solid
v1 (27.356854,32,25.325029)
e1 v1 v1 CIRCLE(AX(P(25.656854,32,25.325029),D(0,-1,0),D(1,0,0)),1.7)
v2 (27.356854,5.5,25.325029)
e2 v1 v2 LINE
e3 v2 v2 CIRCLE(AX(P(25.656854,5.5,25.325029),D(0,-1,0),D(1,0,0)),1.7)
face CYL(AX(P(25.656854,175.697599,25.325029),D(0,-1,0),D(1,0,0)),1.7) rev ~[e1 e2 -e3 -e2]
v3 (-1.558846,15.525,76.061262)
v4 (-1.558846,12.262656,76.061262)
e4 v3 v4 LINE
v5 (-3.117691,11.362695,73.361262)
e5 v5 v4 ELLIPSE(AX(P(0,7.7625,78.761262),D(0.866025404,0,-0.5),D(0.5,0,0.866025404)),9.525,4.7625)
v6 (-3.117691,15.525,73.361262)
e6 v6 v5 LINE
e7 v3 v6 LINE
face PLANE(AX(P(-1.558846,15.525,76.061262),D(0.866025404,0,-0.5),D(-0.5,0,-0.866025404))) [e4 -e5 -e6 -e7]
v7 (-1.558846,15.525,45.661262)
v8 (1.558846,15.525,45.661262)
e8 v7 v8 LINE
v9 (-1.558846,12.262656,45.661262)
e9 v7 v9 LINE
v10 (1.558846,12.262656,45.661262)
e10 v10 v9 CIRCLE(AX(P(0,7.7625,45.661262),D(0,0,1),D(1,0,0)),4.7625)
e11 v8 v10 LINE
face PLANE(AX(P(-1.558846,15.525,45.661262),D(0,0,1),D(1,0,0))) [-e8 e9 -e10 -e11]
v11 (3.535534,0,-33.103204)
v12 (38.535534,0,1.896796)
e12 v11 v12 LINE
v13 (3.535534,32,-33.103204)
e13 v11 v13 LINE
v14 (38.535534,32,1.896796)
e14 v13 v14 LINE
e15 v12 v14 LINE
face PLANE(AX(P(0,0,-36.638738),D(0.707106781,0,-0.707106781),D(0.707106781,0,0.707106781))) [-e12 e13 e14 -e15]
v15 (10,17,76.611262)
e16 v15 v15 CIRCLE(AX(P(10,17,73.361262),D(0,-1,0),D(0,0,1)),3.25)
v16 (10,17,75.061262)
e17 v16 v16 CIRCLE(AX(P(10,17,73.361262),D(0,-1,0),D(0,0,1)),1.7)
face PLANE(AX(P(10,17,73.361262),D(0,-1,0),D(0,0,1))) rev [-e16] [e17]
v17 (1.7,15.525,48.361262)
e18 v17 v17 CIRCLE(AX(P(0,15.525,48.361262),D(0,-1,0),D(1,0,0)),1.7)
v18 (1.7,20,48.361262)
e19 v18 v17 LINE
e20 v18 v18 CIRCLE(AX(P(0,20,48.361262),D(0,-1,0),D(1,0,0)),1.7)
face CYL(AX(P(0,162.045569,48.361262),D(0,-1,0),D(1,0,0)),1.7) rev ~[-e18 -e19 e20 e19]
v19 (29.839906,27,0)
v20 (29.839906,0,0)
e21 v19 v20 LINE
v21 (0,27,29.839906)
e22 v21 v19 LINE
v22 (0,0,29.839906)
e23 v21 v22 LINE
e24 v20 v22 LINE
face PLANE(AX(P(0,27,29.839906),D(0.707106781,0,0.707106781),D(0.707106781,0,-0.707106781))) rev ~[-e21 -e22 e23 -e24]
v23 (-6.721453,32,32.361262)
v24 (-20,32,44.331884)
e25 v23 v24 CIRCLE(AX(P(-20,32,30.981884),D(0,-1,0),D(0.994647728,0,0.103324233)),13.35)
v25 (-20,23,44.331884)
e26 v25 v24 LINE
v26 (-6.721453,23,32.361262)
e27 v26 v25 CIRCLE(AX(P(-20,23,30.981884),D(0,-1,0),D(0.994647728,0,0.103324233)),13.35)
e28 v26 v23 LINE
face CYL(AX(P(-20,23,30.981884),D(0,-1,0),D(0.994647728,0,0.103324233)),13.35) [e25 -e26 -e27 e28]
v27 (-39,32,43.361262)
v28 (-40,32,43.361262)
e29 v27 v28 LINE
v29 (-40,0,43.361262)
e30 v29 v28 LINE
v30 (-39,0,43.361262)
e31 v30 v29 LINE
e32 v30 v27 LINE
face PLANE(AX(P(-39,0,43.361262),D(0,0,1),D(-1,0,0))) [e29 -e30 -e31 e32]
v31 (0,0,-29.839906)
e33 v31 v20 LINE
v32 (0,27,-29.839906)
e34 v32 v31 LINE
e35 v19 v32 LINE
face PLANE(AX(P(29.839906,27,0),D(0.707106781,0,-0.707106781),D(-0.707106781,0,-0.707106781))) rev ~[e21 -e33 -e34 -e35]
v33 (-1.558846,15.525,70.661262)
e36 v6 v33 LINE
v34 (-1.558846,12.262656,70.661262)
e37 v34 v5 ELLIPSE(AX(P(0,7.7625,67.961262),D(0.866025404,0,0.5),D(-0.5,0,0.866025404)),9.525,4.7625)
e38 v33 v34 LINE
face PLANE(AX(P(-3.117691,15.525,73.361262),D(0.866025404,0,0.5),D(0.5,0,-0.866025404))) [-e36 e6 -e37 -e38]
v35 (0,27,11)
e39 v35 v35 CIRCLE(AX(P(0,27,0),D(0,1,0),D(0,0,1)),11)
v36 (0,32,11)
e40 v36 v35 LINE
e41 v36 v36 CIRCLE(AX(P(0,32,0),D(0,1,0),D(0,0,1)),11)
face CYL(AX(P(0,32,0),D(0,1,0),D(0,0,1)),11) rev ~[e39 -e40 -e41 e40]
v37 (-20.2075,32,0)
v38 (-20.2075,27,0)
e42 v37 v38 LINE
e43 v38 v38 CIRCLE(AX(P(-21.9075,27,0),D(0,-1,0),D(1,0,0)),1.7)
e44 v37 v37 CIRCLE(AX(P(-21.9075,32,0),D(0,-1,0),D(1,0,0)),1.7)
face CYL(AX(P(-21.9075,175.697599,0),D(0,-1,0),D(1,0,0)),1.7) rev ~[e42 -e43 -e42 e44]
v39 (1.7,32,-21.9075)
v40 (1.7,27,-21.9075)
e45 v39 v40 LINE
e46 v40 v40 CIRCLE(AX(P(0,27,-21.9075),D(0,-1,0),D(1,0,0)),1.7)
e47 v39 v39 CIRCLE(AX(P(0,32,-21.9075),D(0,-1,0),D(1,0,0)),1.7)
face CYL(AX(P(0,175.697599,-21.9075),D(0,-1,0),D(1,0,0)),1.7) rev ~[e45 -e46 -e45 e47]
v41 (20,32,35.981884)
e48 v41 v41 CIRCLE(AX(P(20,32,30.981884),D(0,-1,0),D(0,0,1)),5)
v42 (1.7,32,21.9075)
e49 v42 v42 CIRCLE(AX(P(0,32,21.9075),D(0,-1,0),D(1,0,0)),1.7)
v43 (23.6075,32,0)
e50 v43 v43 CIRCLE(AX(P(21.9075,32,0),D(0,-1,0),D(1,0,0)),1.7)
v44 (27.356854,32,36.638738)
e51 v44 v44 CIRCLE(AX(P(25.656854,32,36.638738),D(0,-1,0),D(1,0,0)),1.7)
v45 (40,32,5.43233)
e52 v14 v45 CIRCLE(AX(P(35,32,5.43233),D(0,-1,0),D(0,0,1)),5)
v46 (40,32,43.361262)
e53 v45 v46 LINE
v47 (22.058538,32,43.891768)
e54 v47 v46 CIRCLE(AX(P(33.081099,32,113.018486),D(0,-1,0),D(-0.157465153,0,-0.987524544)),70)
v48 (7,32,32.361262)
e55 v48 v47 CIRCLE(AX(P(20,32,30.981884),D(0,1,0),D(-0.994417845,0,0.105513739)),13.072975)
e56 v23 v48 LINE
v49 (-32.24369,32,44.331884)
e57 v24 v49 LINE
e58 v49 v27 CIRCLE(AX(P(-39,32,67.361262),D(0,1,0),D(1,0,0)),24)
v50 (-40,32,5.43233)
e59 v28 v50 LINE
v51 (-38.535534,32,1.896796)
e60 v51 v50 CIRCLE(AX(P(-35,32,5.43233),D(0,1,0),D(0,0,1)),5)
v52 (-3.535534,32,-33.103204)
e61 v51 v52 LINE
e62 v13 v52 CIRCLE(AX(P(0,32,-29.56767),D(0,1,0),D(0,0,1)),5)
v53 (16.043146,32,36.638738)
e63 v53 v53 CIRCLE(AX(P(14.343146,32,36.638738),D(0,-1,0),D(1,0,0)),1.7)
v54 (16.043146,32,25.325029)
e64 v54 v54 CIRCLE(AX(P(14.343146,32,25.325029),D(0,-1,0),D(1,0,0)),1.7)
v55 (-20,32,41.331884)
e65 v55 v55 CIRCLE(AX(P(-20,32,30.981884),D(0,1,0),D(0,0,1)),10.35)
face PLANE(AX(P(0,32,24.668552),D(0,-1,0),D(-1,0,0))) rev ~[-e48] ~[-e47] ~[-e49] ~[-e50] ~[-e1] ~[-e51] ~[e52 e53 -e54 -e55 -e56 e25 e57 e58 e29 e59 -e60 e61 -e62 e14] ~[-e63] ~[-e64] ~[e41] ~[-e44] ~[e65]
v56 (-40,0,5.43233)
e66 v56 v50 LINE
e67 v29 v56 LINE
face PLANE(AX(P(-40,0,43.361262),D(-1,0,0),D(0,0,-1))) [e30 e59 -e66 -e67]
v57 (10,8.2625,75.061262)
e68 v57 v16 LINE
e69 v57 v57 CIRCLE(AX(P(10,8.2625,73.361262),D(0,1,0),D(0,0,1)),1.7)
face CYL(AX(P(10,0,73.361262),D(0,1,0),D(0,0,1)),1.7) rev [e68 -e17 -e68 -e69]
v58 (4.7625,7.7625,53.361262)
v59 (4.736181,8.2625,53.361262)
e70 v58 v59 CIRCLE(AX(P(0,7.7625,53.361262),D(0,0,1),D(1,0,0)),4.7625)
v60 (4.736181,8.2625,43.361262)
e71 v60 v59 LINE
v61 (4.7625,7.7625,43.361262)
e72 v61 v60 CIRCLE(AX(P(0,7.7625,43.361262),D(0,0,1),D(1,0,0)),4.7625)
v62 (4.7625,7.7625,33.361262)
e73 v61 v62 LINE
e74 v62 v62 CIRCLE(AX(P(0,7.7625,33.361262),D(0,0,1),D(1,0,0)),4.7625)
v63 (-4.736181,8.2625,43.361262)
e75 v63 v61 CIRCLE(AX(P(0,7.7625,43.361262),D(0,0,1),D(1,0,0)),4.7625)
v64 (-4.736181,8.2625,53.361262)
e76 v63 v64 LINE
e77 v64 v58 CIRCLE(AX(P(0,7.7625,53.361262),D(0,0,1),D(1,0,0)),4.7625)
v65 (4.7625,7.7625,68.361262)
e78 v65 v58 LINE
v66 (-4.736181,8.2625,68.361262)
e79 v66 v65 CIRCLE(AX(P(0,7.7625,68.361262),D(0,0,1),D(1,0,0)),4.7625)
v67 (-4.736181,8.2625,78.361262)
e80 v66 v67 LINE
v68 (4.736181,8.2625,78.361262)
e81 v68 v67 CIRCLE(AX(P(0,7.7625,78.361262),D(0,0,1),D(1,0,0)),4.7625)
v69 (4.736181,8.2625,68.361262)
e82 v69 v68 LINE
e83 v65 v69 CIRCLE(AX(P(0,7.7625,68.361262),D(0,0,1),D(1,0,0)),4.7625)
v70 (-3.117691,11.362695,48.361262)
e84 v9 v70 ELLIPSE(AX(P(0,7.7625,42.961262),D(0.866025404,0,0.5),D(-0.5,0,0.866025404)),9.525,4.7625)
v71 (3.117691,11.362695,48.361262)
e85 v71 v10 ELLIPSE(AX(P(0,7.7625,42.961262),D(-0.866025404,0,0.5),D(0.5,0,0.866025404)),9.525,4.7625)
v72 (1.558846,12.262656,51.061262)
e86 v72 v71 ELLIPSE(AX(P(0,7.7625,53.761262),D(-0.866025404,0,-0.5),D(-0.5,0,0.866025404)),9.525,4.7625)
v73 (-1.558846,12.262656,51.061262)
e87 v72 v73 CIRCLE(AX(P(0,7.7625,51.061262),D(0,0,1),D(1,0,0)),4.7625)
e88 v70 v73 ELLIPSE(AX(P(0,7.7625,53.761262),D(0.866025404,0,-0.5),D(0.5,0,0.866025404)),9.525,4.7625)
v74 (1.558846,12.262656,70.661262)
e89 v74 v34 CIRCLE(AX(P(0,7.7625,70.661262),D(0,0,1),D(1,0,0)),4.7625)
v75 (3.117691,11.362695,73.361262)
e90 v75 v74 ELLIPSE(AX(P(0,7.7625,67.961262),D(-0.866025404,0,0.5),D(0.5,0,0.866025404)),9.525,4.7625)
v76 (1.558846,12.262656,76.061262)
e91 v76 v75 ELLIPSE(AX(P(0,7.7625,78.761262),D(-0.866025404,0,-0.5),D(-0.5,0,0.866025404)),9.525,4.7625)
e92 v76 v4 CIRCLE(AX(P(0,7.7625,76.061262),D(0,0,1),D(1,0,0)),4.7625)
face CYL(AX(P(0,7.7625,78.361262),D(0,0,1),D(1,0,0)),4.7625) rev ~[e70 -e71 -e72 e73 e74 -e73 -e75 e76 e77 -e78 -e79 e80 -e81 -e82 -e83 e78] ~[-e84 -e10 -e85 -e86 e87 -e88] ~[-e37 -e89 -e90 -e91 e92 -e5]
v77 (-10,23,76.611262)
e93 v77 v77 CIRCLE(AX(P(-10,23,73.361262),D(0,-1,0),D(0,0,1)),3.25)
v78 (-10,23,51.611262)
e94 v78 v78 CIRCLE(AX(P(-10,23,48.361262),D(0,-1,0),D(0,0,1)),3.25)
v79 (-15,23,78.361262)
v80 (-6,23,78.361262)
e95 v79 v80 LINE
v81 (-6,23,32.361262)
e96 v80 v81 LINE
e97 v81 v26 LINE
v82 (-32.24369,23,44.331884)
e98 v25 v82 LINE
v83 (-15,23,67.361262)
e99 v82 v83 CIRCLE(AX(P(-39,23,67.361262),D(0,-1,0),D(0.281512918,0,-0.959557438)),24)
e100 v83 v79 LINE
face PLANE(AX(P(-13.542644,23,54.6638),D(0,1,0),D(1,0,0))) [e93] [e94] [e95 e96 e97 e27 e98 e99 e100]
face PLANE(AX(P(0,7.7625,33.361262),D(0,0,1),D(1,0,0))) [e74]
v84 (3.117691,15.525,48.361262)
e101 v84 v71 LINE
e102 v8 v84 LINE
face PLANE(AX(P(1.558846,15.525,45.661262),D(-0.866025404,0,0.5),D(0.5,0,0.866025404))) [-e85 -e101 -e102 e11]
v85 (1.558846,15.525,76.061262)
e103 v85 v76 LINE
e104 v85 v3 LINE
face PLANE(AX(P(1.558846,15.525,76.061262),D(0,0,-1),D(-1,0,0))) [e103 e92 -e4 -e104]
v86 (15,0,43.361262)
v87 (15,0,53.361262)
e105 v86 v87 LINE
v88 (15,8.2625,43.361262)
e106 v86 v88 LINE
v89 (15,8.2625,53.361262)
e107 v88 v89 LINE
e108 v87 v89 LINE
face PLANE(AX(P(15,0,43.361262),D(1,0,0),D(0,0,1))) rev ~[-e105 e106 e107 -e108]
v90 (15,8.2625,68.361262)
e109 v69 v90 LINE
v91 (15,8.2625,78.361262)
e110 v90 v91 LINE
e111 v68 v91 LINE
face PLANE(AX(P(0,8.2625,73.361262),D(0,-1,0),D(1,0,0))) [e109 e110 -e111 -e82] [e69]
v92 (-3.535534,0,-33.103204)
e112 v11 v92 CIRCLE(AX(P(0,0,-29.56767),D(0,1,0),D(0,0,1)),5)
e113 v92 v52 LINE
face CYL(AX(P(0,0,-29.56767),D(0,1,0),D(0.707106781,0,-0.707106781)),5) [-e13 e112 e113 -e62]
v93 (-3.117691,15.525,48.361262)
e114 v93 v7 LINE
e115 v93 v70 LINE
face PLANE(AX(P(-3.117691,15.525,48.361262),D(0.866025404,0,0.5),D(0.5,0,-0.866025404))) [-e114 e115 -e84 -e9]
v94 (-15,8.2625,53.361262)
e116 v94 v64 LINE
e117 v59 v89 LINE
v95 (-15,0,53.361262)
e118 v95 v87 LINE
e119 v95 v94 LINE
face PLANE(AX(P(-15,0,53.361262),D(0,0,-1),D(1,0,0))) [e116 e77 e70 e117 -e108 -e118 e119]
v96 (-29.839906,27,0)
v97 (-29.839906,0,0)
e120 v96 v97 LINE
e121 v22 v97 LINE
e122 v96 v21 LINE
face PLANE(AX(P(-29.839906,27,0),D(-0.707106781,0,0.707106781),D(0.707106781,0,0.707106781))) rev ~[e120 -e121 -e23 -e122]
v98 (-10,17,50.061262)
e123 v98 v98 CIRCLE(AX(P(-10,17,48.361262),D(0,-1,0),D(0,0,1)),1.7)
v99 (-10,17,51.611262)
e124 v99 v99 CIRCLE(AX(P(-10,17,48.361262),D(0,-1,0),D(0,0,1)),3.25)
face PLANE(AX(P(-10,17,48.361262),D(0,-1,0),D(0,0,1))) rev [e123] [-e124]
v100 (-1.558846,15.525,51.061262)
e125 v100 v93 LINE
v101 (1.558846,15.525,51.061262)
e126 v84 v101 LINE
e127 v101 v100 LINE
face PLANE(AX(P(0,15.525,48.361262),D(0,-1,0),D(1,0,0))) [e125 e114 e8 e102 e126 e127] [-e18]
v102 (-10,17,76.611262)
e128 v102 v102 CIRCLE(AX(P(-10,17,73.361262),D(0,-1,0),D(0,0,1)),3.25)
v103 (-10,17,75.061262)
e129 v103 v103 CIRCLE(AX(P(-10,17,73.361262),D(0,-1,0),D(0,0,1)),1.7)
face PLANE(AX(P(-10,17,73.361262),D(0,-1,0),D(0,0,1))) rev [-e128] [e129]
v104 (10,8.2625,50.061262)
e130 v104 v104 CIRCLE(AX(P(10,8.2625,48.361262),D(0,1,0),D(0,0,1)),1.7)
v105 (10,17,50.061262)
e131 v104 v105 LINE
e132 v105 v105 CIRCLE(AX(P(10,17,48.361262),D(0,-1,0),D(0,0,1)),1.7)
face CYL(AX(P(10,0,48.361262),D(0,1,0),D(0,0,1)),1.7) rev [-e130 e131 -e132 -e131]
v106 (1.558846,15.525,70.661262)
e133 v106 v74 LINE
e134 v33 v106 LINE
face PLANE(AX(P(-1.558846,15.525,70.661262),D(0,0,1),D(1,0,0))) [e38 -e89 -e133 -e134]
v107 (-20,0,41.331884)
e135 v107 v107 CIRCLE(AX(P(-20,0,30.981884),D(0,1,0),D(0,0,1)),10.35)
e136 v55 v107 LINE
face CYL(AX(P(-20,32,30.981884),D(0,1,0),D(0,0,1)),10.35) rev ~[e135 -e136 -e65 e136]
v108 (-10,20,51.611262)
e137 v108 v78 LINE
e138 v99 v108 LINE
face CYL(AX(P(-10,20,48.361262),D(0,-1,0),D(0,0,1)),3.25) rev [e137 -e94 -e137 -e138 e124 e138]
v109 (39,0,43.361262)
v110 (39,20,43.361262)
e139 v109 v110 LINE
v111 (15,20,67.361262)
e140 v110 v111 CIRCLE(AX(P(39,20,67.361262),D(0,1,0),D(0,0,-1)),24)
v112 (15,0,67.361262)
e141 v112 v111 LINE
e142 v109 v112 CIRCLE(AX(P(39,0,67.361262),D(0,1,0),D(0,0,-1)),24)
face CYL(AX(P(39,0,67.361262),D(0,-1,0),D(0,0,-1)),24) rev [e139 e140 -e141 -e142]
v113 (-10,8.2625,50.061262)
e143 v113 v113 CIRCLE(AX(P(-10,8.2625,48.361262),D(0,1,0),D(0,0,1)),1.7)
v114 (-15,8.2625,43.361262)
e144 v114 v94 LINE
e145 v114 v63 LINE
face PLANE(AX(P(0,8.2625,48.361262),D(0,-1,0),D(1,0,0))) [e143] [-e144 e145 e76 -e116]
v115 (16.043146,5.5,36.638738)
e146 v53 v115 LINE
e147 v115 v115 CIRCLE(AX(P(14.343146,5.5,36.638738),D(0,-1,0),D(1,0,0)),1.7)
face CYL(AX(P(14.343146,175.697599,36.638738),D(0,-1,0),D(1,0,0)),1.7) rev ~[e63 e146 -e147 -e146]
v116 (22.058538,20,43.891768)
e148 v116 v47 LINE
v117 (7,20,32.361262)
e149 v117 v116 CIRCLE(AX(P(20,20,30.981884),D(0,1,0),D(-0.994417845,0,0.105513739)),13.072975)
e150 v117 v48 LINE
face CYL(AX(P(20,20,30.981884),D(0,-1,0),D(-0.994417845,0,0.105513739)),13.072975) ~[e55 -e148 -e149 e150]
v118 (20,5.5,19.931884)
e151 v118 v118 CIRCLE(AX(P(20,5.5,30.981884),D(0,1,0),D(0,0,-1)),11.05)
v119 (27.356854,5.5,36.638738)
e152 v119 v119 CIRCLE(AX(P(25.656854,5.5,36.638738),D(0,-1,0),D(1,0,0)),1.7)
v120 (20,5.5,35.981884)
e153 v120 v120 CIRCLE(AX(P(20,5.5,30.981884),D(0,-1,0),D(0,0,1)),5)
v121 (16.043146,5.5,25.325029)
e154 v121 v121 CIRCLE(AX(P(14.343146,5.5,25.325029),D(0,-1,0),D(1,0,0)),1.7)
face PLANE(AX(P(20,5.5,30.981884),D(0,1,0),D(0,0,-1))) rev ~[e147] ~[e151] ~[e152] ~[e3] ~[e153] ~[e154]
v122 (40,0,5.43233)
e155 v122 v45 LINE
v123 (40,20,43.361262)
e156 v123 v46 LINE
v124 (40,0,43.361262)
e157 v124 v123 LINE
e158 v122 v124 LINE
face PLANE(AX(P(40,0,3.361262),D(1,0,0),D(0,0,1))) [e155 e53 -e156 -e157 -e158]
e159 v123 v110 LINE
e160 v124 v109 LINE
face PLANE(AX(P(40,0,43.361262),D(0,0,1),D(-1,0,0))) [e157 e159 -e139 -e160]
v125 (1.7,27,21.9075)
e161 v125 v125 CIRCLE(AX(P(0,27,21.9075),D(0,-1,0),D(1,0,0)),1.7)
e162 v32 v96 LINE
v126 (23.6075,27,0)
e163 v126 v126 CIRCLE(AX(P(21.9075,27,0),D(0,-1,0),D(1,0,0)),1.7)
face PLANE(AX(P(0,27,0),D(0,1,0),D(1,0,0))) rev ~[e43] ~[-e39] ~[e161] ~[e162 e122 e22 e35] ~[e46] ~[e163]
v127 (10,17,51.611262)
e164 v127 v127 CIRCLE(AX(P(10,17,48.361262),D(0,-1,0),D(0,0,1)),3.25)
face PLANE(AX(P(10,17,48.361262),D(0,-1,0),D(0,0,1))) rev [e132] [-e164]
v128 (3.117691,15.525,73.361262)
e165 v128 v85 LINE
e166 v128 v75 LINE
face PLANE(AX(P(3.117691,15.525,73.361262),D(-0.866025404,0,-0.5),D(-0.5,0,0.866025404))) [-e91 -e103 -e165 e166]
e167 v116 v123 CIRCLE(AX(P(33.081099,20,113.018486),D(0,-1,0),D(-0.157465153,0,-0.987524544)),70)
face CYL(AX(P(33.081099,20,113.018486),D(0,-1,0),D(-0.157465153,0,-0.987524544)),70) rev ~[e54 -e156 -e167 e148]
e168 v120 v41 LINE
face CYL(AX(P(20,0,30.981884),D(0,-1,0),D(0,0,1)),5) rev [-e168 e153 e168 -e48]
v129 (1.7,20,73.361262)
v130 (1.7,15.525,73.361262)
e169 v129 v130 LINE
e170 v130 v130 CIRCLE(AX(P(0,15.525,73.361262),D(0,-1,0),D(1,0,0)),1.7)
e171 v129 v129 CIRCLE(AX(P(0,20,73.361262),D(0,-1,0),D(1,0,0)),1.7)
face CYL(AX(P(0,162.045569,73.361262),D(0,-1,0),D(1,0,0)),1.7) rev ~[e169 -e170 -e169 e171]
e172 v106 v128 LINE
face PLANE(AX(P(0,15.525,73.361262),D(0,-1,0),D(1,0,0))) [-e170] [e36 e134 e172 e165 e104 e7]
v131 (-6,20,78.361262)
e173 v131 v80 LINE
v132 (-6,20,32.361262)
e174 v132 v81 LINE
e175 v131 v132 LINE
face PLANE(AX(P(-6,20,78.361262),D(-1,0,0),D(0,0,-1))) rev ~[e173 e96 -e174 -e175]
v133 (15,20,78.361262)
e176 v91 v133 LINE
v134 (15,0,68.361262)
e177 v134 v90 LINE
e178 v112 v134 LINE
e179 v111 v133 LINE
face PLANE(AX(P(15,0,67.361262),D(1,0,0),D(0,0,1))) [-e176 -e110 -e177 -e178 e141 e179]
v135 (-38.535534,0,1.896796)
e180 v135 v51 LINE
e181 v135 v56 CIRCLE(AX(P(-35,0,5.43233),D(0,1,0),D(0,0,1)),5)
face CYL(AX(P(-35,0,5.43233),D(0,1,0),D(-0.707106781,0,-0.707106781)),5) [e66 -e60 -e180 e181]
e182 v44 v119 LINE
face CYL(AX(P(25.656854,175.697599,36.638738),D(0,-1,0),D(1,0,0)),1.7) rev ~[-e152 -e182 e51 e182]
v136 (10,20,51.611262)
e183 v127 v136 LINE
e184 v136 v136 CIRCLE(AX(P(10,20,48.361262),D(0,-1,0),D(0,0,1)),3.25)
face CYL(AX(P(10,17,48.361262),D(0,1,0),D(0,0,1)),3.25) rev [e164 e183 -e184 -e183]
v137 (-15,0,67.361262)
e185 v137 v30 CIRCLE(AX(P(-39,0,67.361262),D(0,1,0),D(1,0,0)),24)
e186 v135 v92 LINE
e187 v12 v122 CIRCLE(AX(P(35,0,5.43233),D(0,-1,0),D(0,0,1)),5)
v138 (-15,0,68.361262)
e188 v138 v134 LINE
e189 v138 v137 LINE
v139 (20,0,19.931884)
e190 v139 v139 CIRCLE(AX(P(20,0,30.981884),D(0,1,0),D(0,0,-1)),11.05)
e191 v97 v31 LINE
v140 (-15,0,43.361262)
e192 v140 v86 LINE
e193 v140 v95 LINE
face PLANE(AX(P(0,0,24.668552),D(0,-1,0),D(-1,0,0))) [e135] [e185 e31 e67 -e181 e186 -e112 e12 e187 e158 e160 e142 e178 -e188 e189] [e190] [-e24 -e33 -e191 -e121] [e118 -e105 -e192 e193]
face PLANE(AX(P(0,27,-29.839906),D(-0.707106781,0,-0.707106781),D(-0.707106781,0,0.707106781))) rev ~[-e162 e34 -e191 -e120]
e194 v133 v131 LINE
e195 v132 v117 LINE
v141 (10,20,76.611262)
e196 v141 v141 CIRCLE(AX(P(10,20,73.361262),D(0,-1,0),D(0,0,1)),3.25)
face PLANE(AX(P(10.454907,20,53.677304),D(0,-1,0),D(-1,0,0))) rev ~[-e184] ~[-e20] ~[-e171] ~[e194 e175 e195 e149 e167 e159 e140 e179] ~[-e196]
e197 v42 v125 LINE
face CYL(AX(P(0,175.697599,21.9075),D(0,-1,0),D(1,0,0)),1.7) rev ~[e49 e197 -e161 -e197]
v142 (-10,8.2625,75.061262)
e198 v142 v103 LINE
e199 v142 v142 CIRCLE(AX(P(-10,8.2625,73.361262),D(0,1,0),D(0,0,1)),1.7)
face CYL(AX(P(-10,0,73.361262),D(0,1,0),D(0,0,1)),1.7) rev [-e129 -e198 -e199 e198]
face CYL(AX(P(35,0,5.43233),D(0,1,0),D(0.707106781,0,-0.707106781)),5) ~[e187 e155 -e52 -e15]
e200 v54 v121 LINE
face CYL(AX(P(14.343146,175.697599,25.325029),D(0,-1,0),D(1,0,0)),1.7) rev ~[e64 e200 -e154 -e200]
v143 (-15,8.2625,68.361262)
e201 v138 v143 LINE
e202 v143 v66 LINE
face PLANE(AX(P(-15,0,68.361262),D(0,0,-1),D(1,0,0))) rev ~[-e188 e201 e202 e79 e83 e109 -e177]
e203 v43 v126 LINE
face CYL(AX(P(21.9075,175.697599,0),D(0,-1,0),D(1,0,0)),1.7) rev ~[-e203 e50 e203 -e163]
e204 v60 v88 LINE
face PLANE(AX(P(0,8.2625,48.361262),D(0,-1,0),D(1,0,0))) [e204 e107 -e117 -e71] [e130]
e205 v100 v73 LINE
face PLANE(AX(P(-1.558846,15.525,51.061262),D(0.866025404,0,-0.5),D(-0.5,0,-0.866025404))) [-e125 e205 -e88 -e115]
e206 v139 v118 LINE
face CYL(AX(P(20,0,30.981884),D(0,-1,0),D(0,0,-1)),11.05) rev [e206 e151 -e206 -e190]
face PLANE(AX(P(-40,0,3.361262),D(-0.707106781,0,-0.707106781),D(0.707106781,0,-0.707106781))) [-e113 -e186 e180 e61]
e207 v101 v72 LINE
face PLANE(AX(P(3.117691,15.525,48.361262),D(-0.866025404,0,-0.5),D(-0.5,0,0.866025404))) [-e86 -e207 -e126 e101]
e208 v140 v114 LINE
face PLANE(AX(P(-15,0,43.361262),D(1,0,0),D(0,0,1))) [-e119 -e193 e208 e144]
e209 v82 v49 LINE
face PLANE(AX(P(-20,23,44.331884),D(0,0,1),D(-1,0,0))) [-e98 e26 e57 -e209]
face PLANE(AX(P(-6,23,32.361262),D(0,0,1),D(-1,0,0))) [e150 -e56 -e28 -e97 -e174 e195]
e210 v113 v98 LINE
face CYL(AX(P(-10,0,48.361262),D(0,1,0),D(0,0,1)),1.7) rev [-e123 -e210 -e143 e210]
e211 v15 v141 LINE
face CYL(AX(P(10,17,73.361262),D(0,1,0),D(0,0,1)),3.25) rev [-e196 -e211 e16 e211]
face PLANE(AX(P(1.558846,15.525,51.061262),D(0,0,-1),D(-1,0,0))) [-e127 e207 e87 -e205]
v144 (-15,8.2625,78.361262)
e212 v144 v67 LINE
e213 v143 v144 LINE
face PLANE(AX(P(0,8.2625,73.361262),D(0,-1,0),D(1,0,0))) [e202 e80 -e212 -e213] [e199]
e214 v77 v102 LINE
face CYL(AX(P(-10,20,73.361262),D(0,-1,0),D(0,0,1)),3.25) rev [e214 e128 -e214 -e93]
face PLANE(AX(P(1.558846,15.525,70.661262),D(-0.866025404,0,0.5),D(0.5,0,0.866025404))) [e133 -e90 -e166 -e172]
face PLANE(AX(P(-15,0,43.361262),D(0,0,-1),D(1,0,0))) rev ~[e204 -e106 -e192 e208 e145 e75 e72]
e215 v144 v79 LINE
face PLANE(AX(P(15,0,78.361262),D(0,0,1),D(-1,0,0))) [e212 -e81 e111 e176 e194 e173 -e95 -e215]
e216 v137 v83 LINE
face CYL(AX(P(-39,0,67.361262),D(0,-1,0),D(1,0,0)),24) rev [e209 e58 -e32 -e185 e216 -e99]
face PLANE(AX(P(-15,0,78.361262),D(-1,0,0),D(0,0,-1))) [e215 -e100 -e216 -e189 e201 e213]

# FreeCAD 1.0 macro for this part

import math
import FreeCAD as App
import Part
import Sketcher

V = App.Vector
Q = App.Units.Quantity


def edges_at(feature, points):
    """Names of the edges that pass closest to the given points."""
    edges = feature.Shape.Edges
    near = lambda p: min(range(len(edges)), key=lambda i: edges[i].distToShape(Part.Vertex(*p))[0])
    return sorted({f"Edge{near(p) + 1}" for p in points})


def add_polygon(sketch, points):
    """Adds a closed chain of lines whose ends are joined by coincident constraints."""
    first, n = sketch.GeometryCount, len(points)
    for a, b in zip(points, points[1:] + points[:1]):
        sketch.addGeometry(Part.LineSegment(App.Vector(*a, 0), App.Vector(*b, 0)), False)
    for i in range(n):
        sketch.addConstraint(Sketcher.Constraint("Coincident", first + i, 2, first + (i + 1) % n, 1))

doc = App.newDocument("Part")
body = doc.addObject("PartDesign::Body", "Body")

sketch1 = body.newObject("Sketcher::SketchObject", "Sketch")
sketch1.AttachmentSupport = (doc.getObject("XZ_Plane"), [""])
sketch1.MapMode = "FlatFace"
sketch1.addGeometry(Part.LineSegment(V(40, 3.4, 0), V(0, -36.6, 0)), False)
sketch1.addGeometry(Part.LineSegment(V(0, -36.6, 0), V(-40, 3.4, 0)), False)
sketch1.addGeometry(Part.LineSegment(V(-40, 3.4, 0), V(-40, 43.4, 0)), False)
sketch1.addGeometry(Part.LineSegment(V(-40, 43.4, 0), V(-39, 43.4, 0)), False)
sketch1.addGeometry(Part.ArcOfCircle(Part.Circle(V(-39, 67.4, 0), V(0, 0, 1), 24), math.radians(-90), math.radians(0)), False)
sketch1.addGeometry(Part.LineSegment(V(-15, 67.4, 0), V(-15, 78.4, 0)), False)
sketch1.addGeometry(Part.LineSegment(V(-15, 78.4, 0), V(15, 78.4, 0)), False)
sketch1.addGeometry(Part.LineSegment(V(15, 78.4, 0), V(15, 67.4, 0)), False)
sketch1.addGeometry(Part.ArcOfCircle(Part.Circle(V(39, 67.4, 0), V(0, 0, 1), 24), math.radians(180), math.radians(270)), False)
sketch1.addGeometry(Part.LineSegment(V(39, 43.4, 0), V(40, 43.4, 0)), False)
sketch1.addGeometry(Part.LineSegment(V(40, 43.4, 0), V(40, 3.4, 0)), False)
sketch1.addConstraint(Sketcher.Constraint("Coincident", 0, 2, 1, 1))
sketch1.addConstraint(Sketcher.Constraint("Coincident", 1, 2, 2, 1))
sketch1.addConstraint(Sketcher.Constraint("Coincident", 2, 2, 3, 1))
sketch1.addConstraint(Sketcher.Constraint("Tangent", 3, 2, 4, 1))
sketch1.addConstraint(Sketcher.Constraint("Tangent", 4, 2, 5, 1))
sketch1.addConstraint(Sketcher.Constraint("Coincident", 5, 2, 6, 1))
sketch1.addConstraint(Sketcher.Constraint("Coincident", 6, 2, 7, 1))
sketch1.addConstraint(Sketcher.Constraint("Tangent", 7, 2, 8, 1))
sketch1.addConstraint(Sketcher.Constraint("Tangent", 8, 2, 9, 1))
sketch1.addConstraint(Sketcher.Constraint("Coincident", 9, 2, 10, 1))
sketch1.addConstraint(Sketcher.Constraint("Coincident", 10, 2, 0, 1))
sketch1.addConstraint(Sketcher.Constraint("Vertical", 2))
sketch1.addConstraint(Sketcher.Constraint("Horizontal", 3))
sketch1.addConstraint(Sketcher.Constraint("Vertical", 5))
sketch1.addConstraint(Sketcher.Constraint("Horizontal", 6))
sketch1.addConstraint(Sketcher.Constraint("Vertical", 7))
sketch1.addConstraint(Sketcher.Constraint("Horizontal", 9))
sketch1.addConstraint(Sketcher.Constraint("Vertical", 10))
sketch1.addConstraint(Sketcher.Constraint("Equal", 4, 8))
sketch1.addConstraint(Sketcher.Constraint("Symmetric", 4, 3, 8, 3, -2))
sketch1.addConstraint(Sketcher.Constraint("Symmetric", 1, 2, 10, 2, -2))
sketch1.addConstraint(Sketcher.Constraint("PointOnObject", 0, 2, -2))
sketch1.addConstraint(Sketcher.Constraint("Perpendicular", 0, 1))
sketch1.addConstraint(Sketcher.Constraint("Radius", 4, Q("24 mm")))
sketch1.addConstraint(Sketcher.Constraint("DistanceX", 3, 1, 3, 2, Q("1 mm")))
sketch1.addConstraint(Sketcher.Constraint("DistanceX", 6, 1, 6, 2, Q("30 mm")))
sketch1.addConstraint(Sketcher.Constraint("DistanceY", 2, 1, 2, 2, Q("40 mm")))
sketch1.addConstraint(Sketcher.Constraint("DistanceY", 5, 1, 5, 2, Q("11 mm")))
sketch1.addConstraint(Sketcher.Constraint("DistanceY", -1, 1, 4, 3, Q("67.361262 mm")))
pad1 = body.newObject("PartDesign::Pad", "Pad")
pad1.Profile = sketch1
pad1.Length = 32
pad1.Reversed = True

sketch2 = body.newObject("Sketcher::SketchObject", "Sketch001")
sketch2.AttachmentSupport = (doc.getObject("XZ_Plane"), [""])
sketch2.MapMode = "FlatFace"
sketch2.addGeometry(Part.Circle(V(20, 31, 0), V(0, 0, 1), 5), False)
sketch2.addConstraint(Sketcher.Constraint("Diameter", 0, Q("10 mm")))
sketch2.addConstraint(Sketcher.Constraint("DistanceX", -1, 1, 0, 3, Q("20 mm")))
sketch2.addConstraint(Sketcher.Constraint("DistanceY", -1, 1, 0, 3, Q("30.981884 mm")))
pocket1 = body.newObject("PartDesign::Pocket", "Pocket")
pocket1.Profile = sketch2
pocket1.Type = "ThroughAll"

sketch3 = body.newObject("Sketcher::SketchObject", "Sketch002")
sketch3.AttachmentSupport = (doc.getObject("XZ_Plane"), [""])
sketch3.MapMode = "FlatFace"
sketch3.addGeometry(Part.Circle(V(20, 31, 0), V(0, 0, 1), 11), False)
sketch3.addConstraint(Sketcher.Constraint("Diameter", 0, Q("22.1 mm")))
sketch3.addConstraint(Sketcher.Constraint("DistanceX", -1, 1, 0, 3, Q("20 mm")))
sketch3.addConstraint(Sketcher.Constraint("DistanceY", -1, 1, 0, 3, Q("30.981884 mm")))
pocket2 = body.newObject("PartDesign::Pocket", "Pocket001")
pocket2.Profile = sketch3
pocket2.Length = 5.5

sketch4 = body.newObject("Sketcher::SketchObject", "Sketch003")
sketch4.AttachmentSupport = (doc.getObject("XZ_Plane"), [""])
sketch4.MapMode = "FlatFace"
sketch4.AttachmentOffset = App.Placement(V(0, 0, -32), App.Rotation())
sketch4.addGeometry(Part.Circle(V(25.7, 25.3, 0), V(0, 0, 1), 1.7), False)
sketch4.addGeometry(Part.Circle(V(25.7, 36.6, 0), V(0, 0, 1), 1.7), False)
sketch4.addGeometry(Part.Circle(V(14.3, 36.6, 0), V(0, 0, 1), 1.7), False)
sketch4.addGeometry(Part.Circle(V(14.3, 25.3, 0), V(0, 0, 1), 1.7), False)
sketch4.addConstraint(Sketcher.Constraint("Equal", 0, 1))
sketch4.addConstraint(Sketcher.Constraint("Equal", 1, 2))
sketch4.addConstraint(Sketcher.Constraint("Equal", 2, 3))
sketch4.addConstraint(Sketcher.Constraint("Horizontal", 1, 3, 2, 3))
sketch4.addConstraint(Sketcher.Constraint("Horizontal", 0, 3, 3, 3))
sketch4.addConstraint(Sketcher.Constraint("Vertical", 0, 3, 1, 3))
sketch4.addConstraint(Sketcher.Constraint("Vertical", 2, 3, 3, 3))
sketch4.addConstraint(Sketcher.Constraint("Diameter", 0, Q("3.4 mm")))
sketch4.addConstraint(Sketcher.Constraint("DistanceY", -1, 1, 0, 3, Q("25.325029 mm")))
sketch4.addConstraint(Sketcher.Constraint("DistanceY", 0, 3, 1, 3, Q("11.313708 mm")))
sketch4.addConstraint(Sketcher.Constraint("DistanceX", 2, 3, 1, 3, Q("11.313708 mm")))
sketch4.addConstraint(Sketcher.Constraint("DistanceX", -1, 1, 0, 3, Q("25.656854 mm")))
doc.recompute()
hole = body.newObject("PartDesign::Hole", "Hole")
hole.Profile = sketch4
hole.ThreadType = "None"
hole.Diameter = 3.4
hole.DepthType = "ThroughAll"
hole.Reversed = True

sketch5 = body.newObject("Sketcher::SketchObject", "Sketch004")
sketch5.AttachmentSupport = (doc.getObject("XZ_Plane"), [""])
sketch5.MapMode = "FlatFace"
sketch5.AttachmentOffset = App.Placement(V(0, 0, -27), App.Rotation())
add_polygon(sketch5, [(0, -30), (-30, 0), (0, 30), (30, 0)])
sketch5.addConstraint(Sketcher.Constraint("Symmetric", 0, 2, 2, 2, -1, 1))
sketch5.addConstraint(Sketcher.Constraint("Symmetric", 1, 2, 3, 2, -1, 1))
sketch5.addConstraint(Sketcher.Constraint("PointOnObject", 0, 2, -1))
sketch5.addConstraint(Sketcher.Constraint("PointOnObject", 1, 2, -2))
sketch5.addConstraint(Sketcher.Constraint("Perpendicular", 0, 1))
sketch5.addConstraint(Sketcher.Constraint("Distance", 0, Q("42.2 mm")))
pocket3 = body.newObject("PartDesign::Pocket", "Pocket002")
pocket3.Profile = sketch5
pocket3.Type = "ThroughAll"
pocket3.Reversed = True

sketch6 = body.newObject("Sketcher::SketchObject", "Sketch005")
sketch6.AttachmentSupport = (doc.getObject("XZ_Plane"), [""])
sketch6.MapMode = "FlatFace"
sketch6.AttachmentOffset = App.Placement(V(0, 0, -32), App.Rotation())
sketch6.addGeometry(Part.Circle(V(0, 0, 0), V(0, 0, 1), 11), False)
sketch6.addConstraint(Sketcher.Constraint("Coincident", 0, 3, -1, 1))
sketch6.addConstraint(Sketcher.Constraint("Diameter", 0, Q("22 mm")))
pocket4 = body.newObject("PartDesign::Pocket", "Pocket003")
pocket4.Profile = sketch6
pocket4.Type = "ThroughAll"
pocket4.Reversed = True

sketch7 = body.newObject("Sketcher::SketchObject", "Sketch006")
sketch7.AttachmentSupport = (doc.getObject("XZ_Plane"), [""])
sketch7.MapMode = "FlatFace"
sketch7.AttachmentOffset = App.Placement(V(0, 0, -32), App.Rotation())
sketch7.addGeometry(Part.Circle(V(-21.9, 0, 0), V(0, 0, 1), 1.7), False)
sketch7.addGeometry(Part.Circle(V(0, -21.9, 0), V(0, 0, 1), 1.7), False)
sketch7.addGeometry(Part.Circle(V(21.9, 0, 0), V(0, 0, 1), 1.7), False)
sketch7.addGeometry(Part.Circle(V(0, 21.9, 0), V(0, 0, 1), 1.7), False)
sketch7.addConstraint(Sketcher.Constraint("Equal", 0, 1))
sketch7.addConstraint(Sketcher.Constraint("Equal", 1, 2))
sketch7.addConstraint(Sketcher.Constraint("Equal", 2, 3))
sketch7.addConstraint(Sketcher.Constraint("Symmetric", 0, 3, 2, 3, -1, 1))
sketch7.addConstraint(Sketcher.Constraint("Symmetric", 1, 3, 3, 3, -1, 1))
sketch7.addConstraint(Sketcher.Constraint("PointOnObject", 0, 3, -1))
sketch7.addConstraint(Sketcher.Constraint("PointOnObject", 1, 3, -2))
sketch7.addConstraint(Sketcher.Constraint("Diameter", 0, Q("3.4 mm")))
sketch7.addConstraint(Sketcher.Constraint("DistanceX", 0, 3, 2, 3, Q("43.815 mm")))
sketch7.addConstraint(Sketcher.Constraint("DistanceY", 1, 3, 3, 3, Q("43.815 mm")))
doc.recompute()
hole2 = body.newObject("PartDesign::Hole", "Hole001")
hole2.Profile = sketch7
hole2.ThreadType = "None"
hole2.Diameter = 3.4
hole2.DepthType = "ThroughAll"
hole2.Reversed = True

sketch8 = body.newObject("Sketcher::SketchObject", "Sketch007")
sketch8.AttachmentSupport = (doc.getObject("XZ_Plane"), [""])
sketch8.MapMode = "FlatFace"
sketch8.AttachmentOffset = App.Placement(V(0, 0, -32), App.Rotation())
sketch8.addGeometry(Part.Circle(V(-20, 31, 0), V(0, 0, 1), 10), False)
sketch8.addConstraint(Sketcher.Constraint("Diameter", 0, Q("20.7 mm")))
sketch8.addConstraint(Sketcher.Constraint("DistanceX", 0, 3, -1, 1, Q("20 mm")))
sketch8.addConstraint(Sketcher.Constraint("DistanceY", -1, 1, 0, 3, Q("30.981884 mm")))
pocket5 = body.newObject("PartDesign::Pocket", "Pocket004")
pocket5.Profile = sketch8
pocket5.Type = "ThroughAll"
pocket5.Reversed = True

sketch9 = body.newObject("Sketcher::SketchObject", "Sketch008")
sketch9.AttachmentSupport = (doc.getObject("XZ_Plane"), [""])
sketch9.MapMode = "FlatFace"
sketch9.AttachmentOffset = App.Placement(V(0, 0, -20), App.Rotation())
sketch9.addGeometry(Part.LineSegment(V(7, 32.4, 0), V(-6, 32.4, 0)), False)
sketch9.addGeometry(Part.LineSegment(V(-6, 32.4, 0), V(-6, 78.4, 0)), False)
sketch9.addGeometry(Part.LineSegment(V(-6, 78.4, 0), V(15, 78.4, 0)), False)
sketch9.addGeometry(Part.LineSegment(V(15, 78.4, 0), V(15, 67.4, 0)), False)
sketch9.addGeometry(Part.ArcOfCircle(Part.Circle(V(39, 67.4, 0), V(0, 0, 1), 24), math.radians(180), math.radians(270)), False)
sketch9.addGeometry(Part.LineSegment(V(39, 43.4, 0), V(40, 43.4, 0)), False)
sketch9.addGeometry(Part.ArcOfCircle(Part.Circle(V(33.1, 113, 0), V(0, 0, 1), 70), math.radians(-99.06), math.radians(-84.33)), False)
sketch9.addGeometry(Part.ArcOfCircle(Part.Circle(V(20, 31, 0), V(0, 0, 1), 13.1), math.radians(81), math.radians(174)), False)
sketch9.addConstraint(Sketcher.Constraint("Coincident", 0, 2, 1, 1))
sketch9.addConstraint(Sketcher.Constraint("Coincident", 1, 2, 2, 1))
sketch9.addConstraint(Sketcher.Constraint("Coincident", 2, 2, 3, 1))
sketch9.addConstraint(Sketcher.Constraint("Tangent", 3, 2, 4, 1))
sketch9.addConstraint(Sketcher.Constraint("Tangent", 4, 2, 5, 1))
sketch9.addConstraint(Sketcher.Constraint("Coincident", 5, 2, 6, 2))
sketch9.addConstraint(Sketcher.Constraint("Tangent", 6, 1, 7, 1))
sketch9.addConstraint(Sketcher.Constraint("Coincident", 7, 2, 0, 1))
sketch9.addConstraint(Sketcher.Constraint("Horizontal", 0))
sketch9.addConstraint(Sketcher.Constraint("Vertical", 1))
sketch9.addConstraint(Sketcher.Constraint("Horizontal", 2))
sketch9.addConstraint(Sketcher.Constraint("Vertical", 3))
sketch9.addConstraint(Sketcher.Constraint("Horizontal", 5))
sketch9.addConstraint(Sketcher.Constraint("Radius", 4, Q("24 mm")))
sketch9.addConstraint(Sketcher.Constraint("Radius", 6, Q("70 mm")))
sketch9.addConstraint(Sketcher.Constraint("DistanceX", 0, 2, 0, 1, Q("13 mm")))
sketch9.addConstraint(Sketcher.Constraint("DistanceX", 2, 1, 2, 2, Q("21 mm")))
sketch9.addConstraint(Sketcher.Constraint("DistanceX", 5, 1, 5, 2, Q("1 mm")))
sketch9.addConstraint(Sketcher.Constraint("DistanceY", 1, 1, 1, 2, Q("46 mm")))
sketch9.addConstraint(Sketcher.Constraint("DistanceY", 3, 2, 3, 1, Q("11 mm")))
sketch9.addConstraint(Sketcher.Constraint("DistanceX", -1, 1, 4, 3, Q("39 mm")))
sketch9.addConstraint(Sketcher.Constraint("DistanceX", -1, 1, 7, 3, Q("20 mm")))
sketch9.addConstraint(Sketcher.Constraint("Radius", 7, Q("13.072975 mm")))
sketch9.addConstraint(Sketcher.Constraint("DistanceY", -1, 1, 4, 3, Q("67.361262 mm")))
pocket6 = body.newObject("PartDesign::Pocket", "Pocket005")
pocket6.Profile = sketch9
pocket6.Length = 12

sketch10 = body.newObject("Sketcher::SketchObject", "Sketch009")
sketch10.AttachmentSupport = (doc.getObject("XZ_Plane"), [""])
sketch10.MapMode = "FlatFace"
sketch10.AttachmentOffset = App.Placement(V(0, 0, -23), App.Rotation())
sketch10.addGeometry(Part.LineSegment(V(-6, 32.4, 0), V(-6.7, 32.4, 0)), False)
sketch10.addGeometry(Part.ArcOfCircle(Part.Circle(V(-20, 31, 0), V(0, 0, 1), 13.3), math.radians(6), math.radians(90)), False)
sketch10.addGeometry(Part.LineSegment(V(-20, 44.3, 0), V(-32.2, 44.3, 0)), False)
sketch10.addGeometry(Part.ArcOfCircle(Part.Circle(V(-39, 67.4, 0), V(0, 0, 1), 24), math.radians(-74), math.radians(0)), False)
sketch10.addGeometry(Part.LineSegment(V(-15, 67.4, 0), V(-15, 78.4, 0)), False)
sketch10.addGeometry(Part.LineSegment(V(-15, 78.4, 0), V(-6, 78.4, 0)), False)
sketch10.addGeometry(Part.LineSegment(V(-6, 78.4, 0), V(-6, 32.4, 0)), False)
sketch10.addConstraint(Sketcher.Constraint("Coincident", 0, 2, 1, 1))
sketch10.addConstraint(Sketcher.Constraint("Tangent", 1, 2, 2, 1))
sketch10.addConstraint(Sketcher.Constraint("Coincident", 2, 2, 3, 1))
sketch10.addConstraint(Sketcher.Constraint("Tangent", 3, 2, 4, 1))
sketch10.addConstraint(Sketcher.Constraint("Coincident", 4, 2, 5, 1))
sketch10.addConstraint(Sketcher.Constraint("Coincident", 5, 2, 6, 1))
sketch10.addConstraint(Sketcher.Constraint("Coincident", 6, 2, 0, 1))
sketch10.addConstraint(Sketcher.Constraint("Horizontal", 0))
sketch10.addConstraint(Sketcher.Constraint("Horizontal", 2))
sketch10.addConstraint(Sketcher.Constraint("Vertical", 4))
sketch10.addConstraint(Sketcher.Constraint("Horizontal", 5))
sketch10.addConstraint(Sketcher.Constraint("Vertical", 6))
sketch10.addConstraint(Sketcher.Constraint("Radius", 3, Q("24 mm")))
sketch10.addConstraint(Sketcher.Constraint("DistanceX", 5, 1, 5, 2, Q("9 mm")))
sketch10.addConstraint(Sketcher.Constraint("DistanceY", 4, 1, 4, 2, Q("11 mm")))
sketch10.addConstraint(Sketcher.Constraint("DistanceY", 6, 2, 6, 1, Q("46 mm")))
sketch10.addConstraint(Sketcher.Constraint("Radius", 1, Q("13.35 mm")))
sketch10.addConstraint(Sketcher.Constraint("DistanceX", 1, 3, -1, 1, Q("20 mm")))
sketch10.addConstraint(Sketcher.Constraint("DistanceX", 3, 3, -1, 1, Q("39 mm")))
sketch10.addConstraint(Sketcher.Constraint("DistanceX", 2, 2, 2, 1, Q("12.24369 mm")))
sketch10.addConstraint(Sketcher.Constraint("DistanceY", -1, 1, 1, 3, Q("30.981884 mm")))
pocket7 = body.newObject("PartDesign::Pocket", "Pocket006")
pocket7.Profile = sketch10
pocket7.Length = 10
doc.recompute()

fillet = body.newObject("PartDesign::Fillet", "Fillet")
fillet.Base = (pocket7, edges_at(pocket7, [(0, 16, -36.639)]))
fillet.Radius = 5
doc.recompute()

fillet2 = body.newObject("PartDesign::Fillet", "Fillet001")
fillet2.Base = (fillet, edges_at(fillet, [(-40, 16, 3.361), (40, 16, 3.361)]))
fillet2.Radius = 5

sketch11 = body.newObject("Sketcher::SketchObject", "Sketch010")
sketch11.AttachmentSupport = (doc.getObject("XZ_Plane"), [""])
sketch11.MapMode = "FlatFace"
sketch11.AttachmentOffset = App.Placement(V(0, 0, -20), App.Rotation())
sketch11.addGeometry(Part.Circle(V(0, 48.4, 0), V(0, 0, 1), 1.7), False)
sketch11.addGeometry(Part.Circle(V(0, 73.4, 0), V(0, 0, 1), 1.7), False)
sketch11.addConstraint(Sketcher.Constraint("Equal", 0, 1))
sketch11.addConstraint(Sketcher.Constraint("PointOnObject", 0, 3, -2))
sketch11.addConstraint(Sketcher.Constraint("PointOnObject", 1, 3, -2))
sketch11.addConstraint(Sketcher.Constraint("Diameter", 0, Q("3.4 mm")))
sketch11.addConstraint(Sketcher.Constraint("DistanceY", 0, 3, 1, 3, Q("25 mm")))
sketch11.addConstraint(Sketcher.Constraint("DistanceY", -1, 1, 0, 3, Q("48.361262 mm")))
doc.recompute()
hole3 = body.newObject("PartDesign::Hole", "Hole002")
hole3.Profile = sketch11
hole3.ThreadType = "None"
hole3.Diameter = 3.4
hole3.DepthType = "ThroughAll"
hole3.Reversed = True

sketch12 = body.newObject("Sketcher::SketchObject", "Sketch011")
sketch12.AttachmentSupport = (doc.getObject("XZ_Plane"), [""])
sketch12.MapMode = "FlatFace"
sketch12.AttachmentOffset = App.Placement(V(0, 0, -12.525), App.Rotation())
add_polygon(sketch12, [(1.6, 45.7), (3.1, 48.4), (1.6, 51.1), (-1.6, 51.1), (-3.1, 48.4), (-1.6, 45.7)])
add_polygon(sketch12, [(1.6, 70.7), (3.1, 73.4), (1.6, 76.1), (-1.6, 76.1), (-3.1, 73.4), (-1.6, 70.7)])
sketch12.addConstraint(Sketcher.Constraint("Horizontal", 2))
sketch12.addConstraint(Sketcher.Constraint("Horizontal", 5))
sketch12.addConstraint(Sketcher.Constraint("Horizontal", 8))
sketch12.addConstraint(Sketcher.Constraint("Horizontal", 11))
sketch12.addConstraint(Sketcher.Constraint("Symmetric", 0, 2, 3, 2, -2))
sketch12.addConstraint(Sketcher.Constraint("Symmetric", 6, 2, 9, 2, -2))
sketch12.addConstraint(Sketcher.Constraint("Parallel", 0, 3))
sketch12.addConstraint(Sketcher.Constraint("Parallel", 1, 4))
sketch12.addConstraint(Sketcher.Constraint("Parallel", 3, 6))
sketch12.addConstraint(Sketcher.Constraint("Parallel", 4, 7))
sketch12.addConstraint(Sketcher.Constraint("Parallel", 6, 9))
sketch12.addConstraint(Sketcher.Constraint("Parallel", 7, 10))
sketch12.addConstraint(Sketcher.Constraint("Vertical", 2, 2, 4, 2))
sketch12.addConstraint(Sketcher.Constraint("Vertical", 1, 2, 5, 2))
sketch12.addConstraint(Sketcher.Constraint("Vertical", 0, 2, 6, 2))
sketch12.addConstraint(Sketcher.Constraint("Vertical", 5, 2, 7, 2))
sketch12.addConstraint(Sketcher.Constraint("Vertical", 8, 2, 10, 2))
sketch12.addConstraint(Sketcher.Constraint("Angle", 0, Q("60 deg")))
sketch12.addConstraint(Sketcher.Constraint("DistanceY", 0, 2, 6, 2, Q("25 mm")))
sketch12.addConstraint(Sketcher.Constraint("DistanceY", 0, 2, 1, 2, Q("2.7 mm")))
sketch12.addConstraint(Sketcher.Constraint("DistanceX", 2, 2, 2, 1, Q("3.117691 mm")))
sketch12.addConstraint(Sketcher.Constraint("DistanceY", -1, 1, 0, 2, Q("48.361262 mm")))
pocket8 = body.newObject("PartDesign::Pocket", "Pocket007")
pocket8.Profile = sketch12
pocket8.Type = "TwoLengths"
pocket8.Length = 91.109728
pocket8.Length2 = 3
pocket8.Reversed = True

sketch13 = body.newObject("Sketcher::SketchObject", "Sketch012")
sketch13.AttachmentSupport = (doc.getObject("XY_Plane"), [""])
sketch13.MapMode = "FlatFace"
sketch13.AttachmentOffset = App.Placement(V(0, 0, 78.361262), App.Rotation())
sketch13.addGeometry(Part.Circle(V(0, 7.8, 0), V(0, 0, 1), 4.8), False)
sketch13.addConstraint(Sketcher.Constraint("PointOnObject", 0, 3, -2))
sketch13.addConstraint(Sketcher.Constraint("Diameter", 0, Q("9.525 mm")))
sketch13.addConstraint(Sketcher.Constraint("DistanceY", -1, 1, 0, 3, Q("7.7625 mm")))
pocket9 = body.newObject("PartDesign::Pocket", "Pocket008")
pocket9.Profile = sketch13
pocket9.Length = 45

sketch14 = body.newObject("Sketcher::SketchObject", "Sketch013")
sketch14.AttachmentSupport = (doc.getObject("XZ_Plane"), [""])
sketch14.MapMode = "FlatFace"
add_polygon(sketch14, [(-15, 78), (-15, 68), (15, 68), (15, 78)])
add_polygon(sketch14, [(-15, 53), (-15, 43), (15, 43), (15, 53)])
sketch14.addConstraint(Sketcher.Constraint("Vertical", 0))
sketch14.addConstraint(Sketcher.Constraint("Horizontal", 1))
sketch14.addConstraint(Sketcher.Constraint("Vertical", 2))
sketch14.addConstraint(Sketcher.Constraint("Horizontal", 3))
sketch14.addConstraint(Sketcher.Constraint("Vertical", 4))
sketch14.addConstraint(Sketcher.Constraint("Horizontal", 5))
sketch14.addConstraint(Sketcher.Constraint("Vertical", 6))
sketch14.addConstraint(Sketcher.Constraint("Horizontal", 7))
sketch14.addConstraint(Sketcher.Constraint("Vertical", 3, 2, 4, 2))
sketch14.addConstraint(Sketcher.Constraint("Vertical", 2, 2, 5, 2))
sketch14.addConstraint(Sketcher.Constraint("Equal", 2, 4))
sketch14.addConstraint(Sketcher.Constraint("DistanceX", 1, 1, 1, 2, Q("30 mm")))
sketch14.addConstraint(Sketcher.Constraint("DistanceY", 0, 2, 0, 1, Q("10 mm")))
sketch14.addConstraint(Sketcher.Constraint("DistanceX", 0, 2, -1, 1, Q("15 mm")))
sketch14.addConstraint(Sketcher.Constraint("DistanceY", 4, 2, 0, 2, Q("25 mm")))
sketch14.addConstraint(Sketcher.Constraint("DistanceY", -1, 1, 0, 2, Q("68.361262 mm")))
pocket10 = body.newObject("PartDesign::Pocket", "Pocket009")
pocket10.Profile = sketch14
pocket10.Length = 8.2625

sketch15 = body.newObject("Sketcher::SketchObject", "Sketch014")
sketch15.AttachmentSupport = (doc.getObject("YZ_Plane"), [""])
sketch15.MapMode = "FlatFace"
sketch15.AttachmentOffset = App.Placement(V(0, 0, 10), App.Rotation())
add_polygon(sketch15, [(0, 73.4), (20, 73.4), (20, 76.6), (17, 76.6), (17, 75.1), (0, 75.1)])
sketch15.addGeometry(Part.LineSegment(V(20, 73.4, 0), V(0, 73.4, 0)), True)
sketch15.addConstraint(Sketcher.Constraint("Horizontal", 0))
sketch15.addConstraint(Sketcher.Constraint("Vertical", 1))
sketch15.addConstraint(Sketcher.Constraint("Horizontal", 2))
sketch15.addConstraint(Sketcher.Constraint("Vertical", 3))
sketch15.addConstraint(Sketcher.Constraint("Horizontal", 4))
sketch15.addConstraint(Sketcher.Constraint("Vertical", 5))
sketch15.addConstraint(Sketcher.Constraint("Horizontal", 6))
sketch15.addConstraint(Sketcher.Constraint("Coincident", 6, 1, 0, 2))
sketch15.addConstraint(Sketcher.Constraint("PointOnObject", 4, 2, -2))
sketch15.addConstraint(Sketcher.Constraint("PointOnObject", 6, 2, -2))
sketch15.addConstraint(Sketcher.Constraint("DistanceX", 0, 1, 0, 2, Q("20 mm")))
sketch15.addConstraint(Sketcher.Constraint("DistanceX", 2, 2, 2, 1, Q("3 mm")))
sketch15.addConstraint(Sketcher.Constraint("DistanceY", 5, 2, 5, 1, Q("1.7 mm")))
sketch15.addConstraint(Sketcher.Constraint("DistanceY", 1, 1, 1, 2, Q("3.25 mm")))
sketch15.addConstraint(Sketcher.Constraint("DistanceY", -1, 1, 0, 2, Q("73.361262 mm")))
groove = body.newObject("PartDesign::Groove", "Groove")
groove.Profile = sketch15
groove.ReferenceAxis = (sketch15, ["Axis0"])
groove.Angle = 360
doc.recompute()

linearpattern = body.newObject("PartDesign::LinearPattern", "LinearPattern")
linearpattern.Originals = [groove]
linearpattern.Direction = (doc.getObject("Z_Axis"), [""])
linearpattern.Mode = "offset"
linearpattern.Offset = 25
linearpattern.Occurrences = 2
linearpattern.Reversed = True
body.Tip = linearpattern
doc.recompute()

datumline = body.newObject("PartDesign::Line", "DatumLine")
datumline.Placement = App.Placement(V(0, 0, 0), App.Rotation(V(0, 0, 1), V(-0.624695048, 0, -0.780868809)))
linearpattern2 = body.newObject("PartDesign::LinearPattern", "LinearPattern001")
linearpattern2.Originals = [groove]
linearpattern2.Direction = (datumline, [""])
linearpattern2.Mode = "offset"
linearpattern2.Offset = 32.015621
linearpattern2.Occurrences = 2
body.Tip = linearpattern2
doc.recompute()

linearpattern3 = body.newObject("PartDesign::LinearPattern", "LinearPattern002")
linearpattern3.Originals = [groove]
linearpattern3.Direction = (doc.getObject("X_Axis"), [""])
linearpattern3.Mode = "offset"
linearpattern3.Offset = 20
linearpattern3.Occurrences = 2
linearpattern3.Reversed = True
body.Tip = linearpattern3

sketch16 = body.newObject("Sketcher::SketchObject", "Sketch015")
sketch16.AttachmentSupport = (doc.getObject("XZ_Plane"), [""])
sketch16.MapMode = "FlatFace"
sketch16.AttachmentOffset = App.Placement(V(0, 0, -20), App.Rotation())
sketch16.addGeometry(Part.Circle(V(-10, 73.4, 0), V(0, 0, 1), 3.2), False)
sketch16.addGeometry(Part.Circle(V(-10, 48.4, 0), V(0, 0, 1), 3.2), False)
sketch16.addConstraint(Sketcher.Constraint("Equal", 0, 1))
sketch16.addConstraint(Sketcher.Constraint("Vertical", 0, 3, 1, 3))
sketch16.addConstraint(Sketcher.Constraint("Diameter", 0, Q("6.5 mm")))
sketch16.addConstraint(Sketcher.Constraint("DistanceX", 0, 3, -1, 1, Q("10 mm")))
sketch16.addConstraint(Sketcher.Constraint("DistanceY", 1, 3, 0, 3, Q("25 mm")))
sketch16.addConstraint(Sketcher.Constraint("DistanceY", -1, 1, 0, 3, Q("73.361262 mm")))
pocket11 = body.newObject("PartDesign::Pocket", "Pocket010")
pocket11.Profile = sketch16
pocket11.Type = "ThroughAll"

doc.recompute()
